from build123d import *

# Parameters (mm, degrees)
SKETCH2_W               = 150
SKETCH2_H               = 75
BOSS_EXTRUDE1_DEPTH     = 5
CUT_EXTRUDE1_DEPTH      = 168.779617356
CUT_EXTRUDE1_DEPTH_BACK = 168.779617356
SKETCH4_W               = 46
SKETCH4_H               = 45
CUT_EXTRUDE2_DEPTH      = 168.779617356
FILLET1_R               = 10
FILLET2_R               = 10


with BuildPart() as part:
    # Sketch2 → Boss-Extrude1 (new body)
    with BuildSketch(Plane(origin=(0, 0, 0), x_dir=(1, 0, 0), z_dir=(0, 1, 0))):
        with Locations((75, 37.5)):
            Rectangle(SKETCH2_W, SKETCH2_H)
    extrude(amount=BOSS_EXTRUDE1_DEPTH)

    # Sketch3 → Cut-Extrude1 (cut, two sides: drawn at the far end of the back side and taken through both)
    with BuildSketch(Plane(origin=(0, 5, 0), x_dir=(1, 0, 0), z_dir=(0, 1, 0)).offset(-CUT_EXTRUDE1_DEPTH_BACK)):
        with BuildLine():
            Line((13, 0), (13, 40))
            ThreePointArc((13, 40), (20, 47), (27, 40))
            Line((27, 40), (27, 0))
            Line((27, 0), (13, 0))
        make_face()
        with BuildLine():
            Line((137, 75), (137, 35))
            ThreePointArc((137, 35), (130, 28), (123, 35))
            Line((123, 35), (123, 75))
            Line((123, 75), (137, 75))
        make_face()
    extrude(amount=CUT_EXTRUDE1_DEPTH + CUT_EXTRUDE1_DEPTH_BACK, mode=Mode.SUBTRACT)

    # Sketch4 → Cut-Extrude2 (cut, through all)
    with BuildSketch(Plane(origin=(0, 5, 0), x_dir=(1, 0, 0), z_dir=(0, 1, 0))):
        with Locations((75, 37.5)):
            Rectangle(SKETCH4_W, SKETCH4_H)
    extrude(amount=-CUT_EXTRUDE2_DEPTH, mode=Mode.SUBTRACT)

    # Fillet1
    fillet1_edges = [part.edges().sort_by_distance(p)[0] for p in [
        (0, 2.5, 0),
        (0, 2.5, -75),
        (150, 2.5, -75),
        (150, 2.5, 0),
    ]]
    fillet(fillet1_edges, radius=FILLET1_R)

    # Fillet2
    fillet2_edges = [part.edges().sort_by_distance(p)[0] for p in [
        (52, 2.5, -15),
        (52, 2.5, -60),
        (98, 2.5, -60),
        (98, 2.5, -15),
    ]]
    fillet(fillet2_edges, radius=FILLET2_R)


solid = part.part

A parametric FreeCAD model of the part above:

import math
import FreeCAD as App
import Part
import Sketcher


def edges_at(feature, points):
    """Names of the edges that pass closest to the given points."""
    edges = feature.Shape.Edges
    near = lambda p: min(range(len(edges)), key=lambda i: edges[i].distToShape(Part.Vertex(*p))[0])
    return sorted({f"Edge{near(p) + 1}" for p in points})

doc = App.newDocument("Part")
body = doc.addObject("PartDesign::Body", "Body")

# Sketch on XZ plane
sketch1 = body.newObject("Sketcher::SketchObject", "Sketch")
sketch1.AttachmentSupport = (doc.getObject("XZ_Plane"), [""])
sketch1.MapMode = "FlatFace"
sketch1.addGeometry(Part.LineSegment(App.Vector(0, -75, 0), App.Vector(0, 0, 0)), False)
sketch1.addGeometry(Part.LineSegment(App.Vector(0, 0, 0), App.Vector(150, 0, 0)), False)
sketch1.addGeometry(Part.LineSegment(App.Vector(150, 0, 0), App.Vector(150, -75, 0)), False)
sketch1.addGeometry(Part.LineSegment(App.Vector(150, -75, 0), App.Vector(0, -75, 0)), False)
sketch1.addConstraint(Sketcher.Constraint("Coincident", 0, 2, 1, 1))
sketch1.addConstraint(Sketcher.Constraint("Coincident", 1, 2, 2, 1))
sketch1.addConstraint(Sketcher.Constraint("Coincident", 2, 2, 3, 1))
sketch1.addConstraint(Sketcher.Constraint("Coincident", 3, 2, 0, 1))
sketch1.addConstraint(Sketcher.Constraint("Vertical", 0))
sketch1.addConstraint(Sketcher.Constraint("Horizontal", 1))
sketch1.addConstraint(Sketcher.Constraint("Vertical", 2))
sketch1.addConstraint(Sketcher.Constraint("Horizontal", 3))
sketch1.addConstraint(Sketcher.Constraint("Coincident", 0, 2, -1, 1))
sketch1.addConstraint(Sketcher.Constraint("DistanceX", 1, 1, 1, 2, 150.0))
sketch1.addConstraint(Sketcher.Constraint("DistanceY", 0, 1, 0, 2, 75.0))
pad1 = body.newObject("PartDesign::Pad", "Pad")
pad1.Profile = sketch1
pad1.Length = 5
pad1.Reversed = True

# Sketch on XZ plane
sketch2 = body.newObject("Sketcher::SketchObject", "Sketch001")
sketch2.AttachmentSupport = (doc.getObject("XZ_Plane"), [""])
sketch2.MapMode = "FlatFace"
sketch2.AttachmentOffset = App.Placement(App.Vector(0, 0, -5), App.Rotation())
sketch2.addGeometry(Part.LineSegment(App.Vector(13, -40, 0), App.Vector(13, 0, 0)), False)
sketch2.addGeometry(Part.LineSegment(App.Vector(13, 0, 0), App.Vector(27, 0, 0)), False)
sketch2.addGeometry(Part.LineSegment(App.Vector(27, 0, 0), App.Vector(27, -40, 0)), False)
sketch2.addGeometry(Part.ArcOfCircle(Part.Circle(App.Vector(20, -40, 0), App.Vector(0, 0, 1), 7), math.radians(180), math.radians(360)), False)
sketch2.addGeometry(Part.LineSegment(App.Vector(137, -35, 0), App.Vector(137, -75, 0)), False)
sketch2.addGeometry(Part.LineSegment(App.Vector(137, -75, 0), App.Vector(123, -75, 0)), False)
sketch2.addGeometry(Part.LineSegment(App.Vector(123, -75, 0), App.Vector(123, -35, 0)), False)
sketch2.addGeometry(Part.ArcOfCircle(Part.Circle(App.Vector(130, -35, 0), App.Vector(0, 0, 1), 7), math.radians(0), math.radians(180)), False)
sketch2.addConstraint(Sketcher.Constraint("Coincident", 0, 2, 1, 1))
sketch2.addConstraint(Sketcher.Constraint("Coincident", 1, 2, 2, 1))
sketch2.addConstraint(Sketcher.Constraint("Tangent", 2, 2, 3, 2))
sketch2.addConstraint(Sketcher.Constraint("Tangent", 3, 1, 0, 1))
sketch2.addConstraint(Sketcher.Constraint("Coincident", 4, 2, 5, 1))
sketch2.addConstraint(Sketcher.Constraint("Coincident", 5, 2, 6, 1))
sketch2.addConstraint(Sketcher.Constraint("Tangent", 6, 2, 7, 2))
sketch2.addConstraint(Sketcher.Constraint("Tangent", 7, 1, 4, 1))
sketch2.addConstraint(Sketcher.Constraint("Vertical", 0))
sketch2.addConstraint(Sketcher.Constraint("Horizontal", 1))
sketch2.addConstraint(Sketcher.Constraint("Vertical", 2))
sketch2.addConstraint(Sketcher.Constraint("Vertical", 4))
sketch2.addConstraint(Sketcher.Constraint("Horizontal", 5))
sketch2.addConstraint(Sketcher.Constraint("Vertical", 6))
sketch2.addConstraint(Sketcher.Constraint("Equal", 3, 7))
sketch2.addConstraint(Sketcher.Constraint("PointOnObject", 0, 2, -1))
sketch2.addConstraint(Sketcher.Constraint("Equal", 2, 4))
sketch2.addConstraint(Sketcher.Constraint("Radius", 3, 7.0))
sketch2.addConstraint(Sketcher.Constraint("DistanceY", 0, 1, 0, 2, 40.0))
sketch2.addConstraint(Sketcher.Constraint("DistanceX", -1, 1, 3, 3, 20.0))
sketch2.addConstraint(Sketcher.Constraint("DistanceX", -1, 1, 7, 3, 130.0))
sketch2.addConstraint(Sketcher.Constraint("DistanceY", 7, 3, -1, 1, 35.0))
pocket1 = body.newObject("PartDesign::Pocket", "Pocket")
pocket1.Profile = sketch2
pocket1.Type = "ThroughAll"
pocket1.Midplane = True

# Sketch on XZ plane
sketch3 = body.newObject("Sketcher::SketchObject", "Sketch002")
sketch3.AttachmentSupport = (doc.getObject("XZ_Plane"), [""])
sketch3.MapMode = "FlatFace"
sketch3.AttachmentOffset = App.Placement(App.Vector(0, 0, -5), App.Rotation())
sketch3.addGeometry(Part.LineSegment(App.Vector(52, -60, 0), App.Vector(52, -15, 0)), False)
sketch3.addGeometry(Part.LineSegment(App.Vector(52, -15, 0), App.Vector(98, -15, 0)), False)
sketch3.addGeometry(Part.LineSegment(App.Vector(98, -15, 0), App.Vector(98, -60, 0)), False)
sketch3.addGeometry(Part.LineSegment(App.Vector(98, -60, 0), App.Vector(52, -60, 0)), False)
sketch3.addConstraint(Sketcher.Constraint("Coincident", 0, 2, 1, 1))
sketch3.addConstraint(Sketcher.Constraint("Coincident", 1, 2, 2, 1))
sketch3.addConstraint(Sketcher.Constraint("Coincident", 2, 2, 3, 1))
sketch3.addConstraint(Sketcher.Constraint("Coincident", 3, 2, 0, 1))
sketch3.addConstraint(Sketcher.Constraint("Vertical", 0))
sketch3.addConstraint(Sketcher.Constraint("Horizontal", 1))
sketch3.addConstraint(Sketcher.Constraint("Vertical", 2))
sketch3.addConstraint(Sketcher.Constraint("Horizontal", 3))
sketch3.addConstraint(Sketcher.Constraint("DistanceX", 1, 1, 1, 2, 46.0))
sketch3.addConstraint(Sketcher.Constraint("DistanceY", 0, 1, 0, 2, 45.0))
sketch3.addConstraint(Sketcher.Constraint("DistanceX", -1, 1, 0, 2, 52.0))
sketch3.addConstraint(Sketcher.Constraint("DistanceY", 0, 2, -1, 1, 15.0))
pocket2 = body.newObject("PartDesign::Pocket", "Pocket001")
pocket2.Profile = sketch3
pocket2.Type = "ThroughAll"
pocket2.Reversed = True
doc.recompute()

fillet = body.newObject("PartDesign::Fillet", "Fillet")
fillet.Base = (pocket2, edges_at(pocket2, [
    (0, 2.5, 0),
    (0, 2.5, -75),
    (150, 2.5, -75),
    (150, 2.5, 0),
]))
fillet.Radius = 10
doc.recompute()

fillet2 = body.newObject("PartDesign::Fillet", "Fillet001")
fillet2.Base = (fillet, edges_at(fillet, [
    (52, 2.5, -15),
    (52, 2.5, -60),
    (98, 2.5, -60),
    (98, 2.5, -15),
]))
fillet2.Radius = 10

doc.recompute()
